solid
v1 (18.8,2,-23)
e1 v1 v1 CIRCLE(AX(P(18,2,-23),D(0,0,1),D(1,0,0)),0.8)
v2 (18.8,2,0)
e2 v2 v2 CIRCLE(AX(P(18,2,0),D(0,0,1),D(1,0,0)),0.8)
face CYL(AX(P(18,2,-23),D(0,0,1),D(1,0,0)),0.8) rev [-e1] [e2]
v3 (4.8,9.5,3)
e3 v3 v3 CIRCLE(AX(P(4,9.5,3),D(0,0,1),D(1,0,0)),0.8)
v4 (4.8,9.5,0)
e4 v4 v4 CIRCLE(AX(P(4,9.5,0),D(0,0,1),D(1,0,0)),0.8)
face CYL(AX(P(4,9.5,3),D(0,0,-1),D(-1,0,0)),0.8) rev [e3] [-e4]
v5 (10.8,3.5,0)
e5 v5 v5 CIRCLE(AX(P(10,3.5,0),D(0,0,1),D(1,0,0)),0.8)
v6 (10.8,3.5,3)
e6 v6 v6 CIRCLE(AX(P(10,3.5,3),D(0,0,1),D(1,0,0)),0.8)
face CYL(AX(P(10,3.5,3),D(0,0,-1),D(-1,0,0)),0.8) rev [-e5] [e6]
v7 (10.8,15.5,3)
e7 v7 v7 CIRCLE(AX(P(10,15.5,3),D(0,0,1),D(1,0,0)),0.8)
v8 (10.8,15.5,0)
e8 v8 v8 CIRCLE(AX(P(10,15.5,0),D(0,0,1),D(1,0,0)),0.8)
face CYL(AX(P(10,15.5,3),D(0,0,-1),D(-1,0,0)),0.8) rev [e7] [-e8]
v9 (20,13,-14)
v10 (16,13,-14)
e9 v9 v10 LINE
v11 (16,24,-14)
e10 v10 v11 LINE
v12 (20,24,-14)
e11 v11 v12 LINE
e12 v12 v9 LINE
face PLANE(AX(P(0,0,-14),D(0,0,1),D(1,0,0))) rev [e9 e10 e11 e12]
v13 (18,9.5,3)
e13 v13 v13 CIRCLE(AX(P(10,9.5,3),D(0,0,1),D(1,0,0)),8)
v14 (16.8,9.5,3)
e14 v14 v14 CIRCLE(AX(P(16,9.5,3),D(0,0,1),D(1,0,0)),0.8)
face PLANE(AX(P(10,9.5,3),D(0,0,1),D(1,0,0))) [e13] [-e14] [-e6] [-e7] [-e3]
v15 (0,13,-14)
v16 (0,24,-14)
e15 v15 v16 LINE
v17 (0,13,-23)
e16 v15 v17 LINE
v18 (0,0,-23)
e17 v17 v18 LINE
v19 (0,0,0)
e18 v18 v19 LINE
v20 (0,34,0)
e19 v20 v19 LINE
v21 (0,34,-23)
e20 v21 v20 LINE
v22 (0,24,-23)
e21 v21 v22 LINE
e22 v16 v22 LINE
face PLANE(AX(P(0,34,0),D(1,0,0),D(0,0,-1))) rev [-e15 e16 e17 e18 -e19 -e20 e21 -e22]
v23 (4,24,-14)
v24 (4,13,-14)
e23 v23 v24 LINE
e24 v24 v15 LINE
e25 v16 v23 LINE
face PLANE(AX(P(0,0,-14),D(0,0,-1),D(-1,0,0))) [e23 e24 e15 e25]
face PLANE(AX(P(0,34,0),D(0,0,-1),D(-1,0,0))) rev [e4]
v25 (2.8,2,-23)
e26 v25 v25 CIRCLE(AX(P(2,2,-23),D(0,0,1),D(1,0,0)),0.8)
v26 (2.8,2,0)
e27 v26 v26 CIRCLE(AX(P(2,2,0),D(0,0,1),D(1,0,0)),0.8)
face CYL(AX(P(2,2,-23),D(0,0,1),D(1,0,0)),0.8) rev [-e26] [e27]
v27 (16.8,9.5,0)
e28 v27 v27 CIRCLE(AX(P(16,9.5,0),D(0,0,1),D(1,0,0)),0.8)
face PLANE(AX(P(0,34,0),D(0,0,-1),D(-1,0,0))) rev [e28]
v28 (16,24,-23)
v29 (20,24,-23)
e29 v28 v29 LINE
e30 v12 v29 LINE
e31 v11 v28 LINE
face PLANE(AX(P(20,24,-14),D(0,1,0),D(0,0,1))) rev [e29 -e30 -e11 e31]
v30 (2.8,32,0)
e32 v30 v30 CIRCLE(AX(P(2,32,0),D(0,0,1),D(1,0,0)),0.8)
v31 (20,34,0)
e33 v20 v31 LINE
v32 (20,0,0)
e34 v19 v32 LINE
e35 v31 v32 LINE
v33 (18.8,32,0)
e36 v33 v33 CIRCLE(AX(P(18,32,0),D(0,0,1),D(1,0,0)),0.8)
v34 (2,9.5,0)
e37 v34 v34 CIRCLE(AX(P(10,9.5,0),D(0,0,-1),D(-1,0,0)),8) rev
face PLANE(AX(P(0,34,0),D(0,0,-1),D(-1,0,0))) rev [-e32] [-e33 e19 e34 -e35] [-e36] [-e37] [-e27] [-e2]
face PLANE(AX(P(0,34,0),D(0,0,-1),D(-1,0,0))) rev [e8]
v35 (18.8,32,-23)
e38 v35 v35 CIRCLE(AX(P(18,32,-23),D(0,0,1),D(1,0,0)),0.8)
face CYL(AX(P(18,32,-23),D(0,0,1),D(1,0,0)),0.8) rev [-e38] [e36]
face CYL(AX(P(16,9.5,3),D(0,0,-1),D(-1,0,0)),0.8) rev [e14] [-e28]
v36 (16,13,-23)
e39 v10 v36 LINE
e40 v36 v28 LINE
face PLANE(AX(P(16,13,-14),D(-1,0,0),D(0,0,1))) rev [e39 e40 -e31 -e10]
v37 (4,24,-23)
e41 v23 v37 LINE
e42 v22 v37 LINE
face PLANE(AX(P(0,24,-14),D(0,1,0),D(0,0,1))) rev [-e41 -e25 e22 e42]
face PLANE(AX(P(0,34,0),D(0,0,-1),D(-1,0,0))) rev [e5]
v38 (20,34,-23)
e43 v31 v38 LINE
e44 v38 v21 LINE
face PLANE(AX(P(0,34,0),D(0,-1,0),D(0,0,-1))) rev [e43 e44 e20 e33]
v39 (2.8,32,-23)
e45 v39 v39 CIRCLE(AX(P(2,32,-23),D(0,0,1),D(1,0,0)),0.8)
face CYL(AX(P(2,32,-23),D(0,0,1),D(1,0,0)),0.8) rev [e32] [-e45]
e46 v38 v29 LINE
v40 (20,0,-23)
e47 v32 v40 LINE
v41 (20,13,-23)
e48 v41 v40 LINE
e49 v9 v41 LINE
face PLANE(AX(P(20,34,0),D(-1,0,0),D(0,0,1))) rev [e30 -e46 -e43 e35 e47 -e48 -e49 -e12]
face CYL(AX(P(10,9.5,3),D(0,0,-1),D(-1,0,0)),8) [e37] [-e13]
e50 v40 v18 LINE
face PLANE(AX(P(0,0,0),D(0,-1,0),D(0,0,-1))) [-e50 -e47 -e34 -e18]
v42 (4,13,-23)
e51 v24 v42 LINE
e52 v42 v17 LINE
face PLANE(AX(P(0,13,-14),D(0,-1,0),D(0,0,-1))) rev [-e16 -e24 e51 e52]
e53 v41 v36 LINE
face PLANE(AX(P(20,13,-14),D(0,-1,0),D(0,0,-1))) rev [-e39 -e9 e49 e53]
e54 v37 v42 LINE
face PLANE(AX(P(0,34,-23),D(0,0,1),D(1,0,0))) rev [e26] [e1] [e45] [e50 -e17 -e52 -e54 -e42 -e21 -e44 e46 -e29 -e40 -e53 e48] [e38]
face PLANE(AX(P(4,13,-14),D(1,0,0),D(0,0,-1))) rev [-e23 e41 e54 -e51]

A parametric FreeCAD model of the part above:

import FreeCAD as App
import Part
import Sketcher


def add_polygon(sketch, points):
    """Adds a closed chain of lines whose ends are joined by coincident constraints."""
    first, n = sketch.GeometryCount, len(points)
    for a, b in zip(points, points[1:] + points[:1]):
        sketch.addGeometry(Part.LineSegment(App.Vector(*a, 0), App.Vector(*b, 0)), False)
    for i in range(n):
        sketch.addConstraint(Sketcher.Constraint("Coincident", first + i, 2, first + (i + 1) % n, 1))

doc = App.newDocument("Part")
body = doc.addObject("PartDesign::Body", "Body")

# Sketch on XZ plane
sketch1 = body.newObject("Sketcher::SketchObject", "Sketch")
sketch1.AttachmentSupport = (doc.getObject("XZ_Plane"), [""])
sketch1.MapMode = "FlatFace"
add_polygon(sketch1, [(0, -23), (0, 0), (20, 0), (20, -23)])  # lines 0-3
sketch1.addConstraint([
    Sketcher.Constraint("Vertical", 0),
    Sketcher.Constraint("Horizontal", 1),
    Sketcher.Constraint("Vertical", 2),
    Sketcher.Constraint("Horizontal", 3),
    Sketcher.Constraint("Coincident", 0, 2, -1, 1),
    Sketcher.Constraint("DistanceX", 1, 1, 1, 2, 20.0),
    Sketcher.Constraint("DistanceY", 0, 1, 0, 2, 23.0),
])
pad1 = body.newObject("PartDesign::Pad", "Pad")
pad1.Profile = sketch1
pad1.Length = 34
pad1.Reversed = True

# Sketch on XY plane
sketch2 = body.newObject("Sketcher::SketchObject", "Sketch001")
sketch2.AttachmentSupport = (doc.getObject("XY_Plane"), [""])
sketch2.MapMode = "FlatFace"
sketch2.addGeometry([
    Part.Circle(App.Vector(2, 32, 0), App.Vector(0, 0, 1), 0.8),
    Part.Circle(App.Vector(18, 32, 0), App.Vector(0, 0, 1), 0.8),
    Part.Circle(App.Vector(18, 2, 0), App.Vector(0, 0, 1), 0.8),
    Part.Circle(App.Vector(2, 2, 0), App.Vector(0, 0, 1), 0.8),
], False)
sketch2.addConstraint([
    Sketcher.Constraint("Equal", 0, 1),
    Sketcher.Constraint("Equal", 1, 2),
    Sketcher.Constraint("Equal", 2, 3),
    Sketcher.Constraint("Horizontal", 0, 3, 1, 3),
    Sketcher.Constraint("Horizontal", 2, 3, 3, 3),
    Sketcher.Constraint("Vertical", 1, 3, 2, 3),
    Sketcher.Constraint("Vertical", 0, 3, 3, 3),
    Sketcher.Constraint("Diameter", 0, 1.6),
    Sketcher.Constraint("DistanceX", -1, 1, 0, 3, 2.0),
    Sketcher.Constraint("DistanceY", -1, 1, 0, 3, 32.0),
    Sketcher.Constraint("DistanceX", -1, 1, 1, 3, 18.0),
    Sketcher.Constraint("DistanceY", -1, 1, 2, 3, 2.0),
])
pocket1 = body.newObject("PartDesign::Pocket", "Pocket")
pocket1.Profile = sketch2
pocket1.Type = "ThroughAll"

# Sketch on XY plane
sketch3 = body.newObject("Sketcher::SketchObject", "Sketch002")
sketch3.AttachmentSupport = (doc.getObject("XY_Plane"), [""])
sketch3.MapMode = "FlatFace"
sketch3.addGeometry([
    Part.Circle(App.Vector(10, 9.5, 0), App.Vector(0, 0, 1), 8),  # 0
    Part.Circle(App.Vector(10, 3.5, 0), App.Vector(0, 0, 1), 0.8),  # 1
    Part.Circle(App.Vector(4, 9.5, 0), App.Vector(0, 0, 1), 0.8),  # 2
    Part.Circle(App.Vector(16, 9.5, 0), App.Vector(0, 0, 1), 0.8),  # 3
    Part.Circle(App.Vector(10, 15.5, 0), App.Vector(0, 0, 1), 0.8),  # 4
], False)
sketch3.addConstraint([
    Sketcher.Constraint("Equal", 1, 2),
    Sketcher.Constraint("Equal", 2, 3),
    Sketcher.Constraint("Equal", 3, 4),
    Sketcher.Constraint("Horizontal", 0, 3, 2, 3),
    Sketcher.Constraint("Horizontal", 2, 3, 3, 3),
    Sketcher.Constraint("Vertical", 0, 3, 1, 3),
    Sketcher.Constraint("Vertical", 1, 3, 4, 3),
    Sketcher.Constraint("Diameter", 0, 16.0),
    Sketcher.Constraint("Diameter", 1, 1.6),
    Sketcher.Constraint("DistanceX", -1, 1, 0, 3, 10.0),
    Sketcher.Constraint("DistanceX", -1, 1, 2, 3, 4.0),
    Sketcher.Constraint("DistanceX", -1, 1, 3, 3, 16.0),
    Sketcher.Constraint("DistanceY", 1, 3, 0, 3, 6.0),
    Sketcher.Constraint("DistanceY", 0, 3, 4, 3, 6.0),
    Sketcher.Constraint("DistanceY", -1, 1, 0, 3, 9.5),
])
pad2 = body.newObject("PartDesign::Pad", "Pad001")
pad2.Profile = sketch3
pad2.Length = 3

# Sketch on XY plane
sketch4 = body.newObject("Sketcher::SketchObject", "Sketch003")
sketch4.AttachmentSupport = (doc.getObject("XY_Plane"), [""])
sketch4.MapMode = "FlatFace"
sketch4.AttachmentOffset = App.Placement(App.Vector(0, 0, -23), App.Rotation())
add_polygon(sketch4, [(20, 24), (20, 13), (16, 13), (16, 24)])  # lines 0-3
add_polygon(sketch4, [(4, 24), (4, 13), (0, 13), (0, 24)])  # lines 4-7
sketch4.addConstraint([
    Sketcher.Constraint("Vertical", 0),
    Sketcher.Constraint("Horizontal", 1),
    Sketcher.Constraint("Vertical", 2),
    Sketcher.Constraint("Horizontal", 3),
    Sketcher.Constraint("Vertical", 4),
    Sketcher.Constraint("Horizontal", 5),
    Sketcher.Constraint("Vertical", 6),
    Sketcher.Constraint("Horizontal", 7),
    Sketcher.Constraint("PointOnObject", 5, 2, -2),
    Sketcher.Constraint("Horizontal", 1, 2, 4, 2),
    Sketcher.Constraint("Horizontal", 3, 2, 6, 2),
    Sketcher.Constraint("Equal", 3, 5),
    Sketcher.Constraint("DistanceX", 1, 2, 1, 1, 4.0),
    Sketcher.Constraint("DistanceY", 0, 2, 0, 1, 11.0),
    Sketcher.Constraint("DistanceX", -1, 1, 0, 2, 20.0),
    Sketcher.Constraint("DistanceY", -1, 1, 0, 2, 13.0),
])
pocket2 = body.newObject("PartDesign::Pocket", "Pocket001")
pocket2.Profile = sketch4
pocket2.Length = 9
pocket2.Reversed = True

doc.recompute()
